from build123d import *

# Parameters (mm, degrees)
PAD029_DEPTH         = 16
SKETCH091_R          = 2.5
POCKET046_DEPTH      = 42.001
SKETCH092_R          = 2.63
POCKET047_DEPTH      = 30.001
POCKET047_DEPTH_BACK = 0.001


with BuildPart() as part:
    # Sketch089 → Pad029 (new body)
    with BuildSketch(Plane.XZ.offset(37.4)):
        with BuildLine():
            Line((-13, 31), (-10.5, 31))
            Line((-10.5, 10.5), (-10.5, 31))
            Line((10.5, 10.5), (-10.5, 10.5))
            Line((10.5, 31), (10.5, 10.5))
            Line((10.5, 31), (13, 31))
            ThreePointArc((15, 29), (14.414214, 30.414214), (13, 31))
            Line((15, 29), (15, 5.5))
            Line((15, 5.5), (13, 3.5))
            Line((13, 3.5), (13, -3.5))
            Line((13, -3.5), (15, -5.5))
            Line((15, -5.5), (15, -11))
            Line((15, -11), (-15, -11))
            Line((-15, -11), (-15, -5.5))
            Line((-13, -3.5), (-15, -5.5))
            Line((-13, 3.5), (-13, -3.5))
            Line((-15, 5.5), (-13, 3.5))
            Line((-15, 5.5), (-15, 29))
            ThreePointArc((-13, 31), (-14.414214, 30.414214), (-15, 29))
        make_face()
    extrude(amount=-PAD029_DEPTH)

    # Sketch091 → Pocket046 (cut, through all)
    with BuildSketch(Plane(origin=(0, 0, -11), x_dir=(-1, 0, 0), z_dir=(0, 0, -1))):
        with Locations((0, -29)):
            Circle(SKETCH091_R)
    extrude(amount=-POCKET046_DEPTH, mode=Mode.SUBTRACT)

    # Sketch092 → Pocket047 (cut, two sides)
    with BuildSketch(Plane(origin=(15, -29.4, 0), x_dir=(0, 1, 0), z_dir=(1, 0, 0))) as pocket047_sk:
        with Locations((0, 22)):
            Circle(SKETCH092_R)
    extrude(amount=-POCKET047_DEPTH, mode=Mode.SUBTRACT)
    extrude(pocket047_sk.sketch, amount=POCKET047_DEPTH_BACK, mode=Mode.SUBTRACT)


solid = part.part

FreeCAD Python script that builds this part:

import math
import FreeCAD as App
import Part
import Sketcher
Q = App.Units.Quantity

doc = App.newDocument("Part")
body = doc.addObject("PartDesign::Body", "Body")

# Sketch on XZ plane
sketch1 = doc.addObject("Sketcher::SketchObject", "Sketch")
body.addObject(sketch1)
sketch1.AttachmentSupport = (doc.XZ_Plane, [""])
sketch1.MapMode = "FlatFace"
sketch1.AttachmentOffset = App.Placement(App.Vector(0, 0, 37.4), App.Rotation())
sketch1.addGeometry(Part.LineSegment(App.Vector(-10.5, 31, 0), App.Vector(-13, 31, 0)), False)
sketch1.addGeometry(Part.ArcOfCircle(Part.Circle(App.Vector(-13.000001, 29.000001, 0), App.Vector(0, 0, 1), 1.999999), math.radians(89.999957), math.radians(180.000043)), False)
sketch1.addGeometry(Part.LineSegment(App.Vector(-15, 29, 0), App.Vector(-15, 5.5, 0)), False)
sketch1.addGeometry(Part.LineSegment(App.Vector(-15, 5.5, 0), App.Vector(-13, 3.5, 0)), False)
sketch1.addGeometry(Part.LineSegment(App.Vector(-13, 3.5, 0), App.Vector(-13, -3.5, 0)), False)
sketch1.addGeometry(Part.LineSegment(App.Vector(-13, -3.5, 0), App.Vector(-15, -5.5, 0)), False)
sketch1.addGeometry(Part.LineSegment(App.Vector(-15, -5.5, 0), App.Vector(-15, -11, 0)), False)
sketch1.addGeometry(Part.LineSegment(App.Vector(-15, -11, 0), App.Vector(15, -11, 0)), False)
sketch1.addGeometry(Part.LineSegment(App.Vector(15, -11, 0), App.Vector(15, -5.5, 0)), False)
sketch1.addGeometry(Part.LineSegment(App.Vector(15, -5.5, 0), App.Vector(13, -3.5, 0)), False)
sketch1.addGeometry(Part.LineSegment(App.Vector(13, -3.5, 0), App.Vector(13, 3.5, 0)), False)
sketch1.addGeometry(Part.LineSegment(App.Vector(13, 3.5, 0), App.Vector(15, 5.5, 0)), False)
sketch1.addGeometry(Part.LineSegment(App.Vector(15, 5.5, 0), App.Vector(15, 29, 0)), False)
sketch1.addGeometry(Part.ArcOfCircle(Part.Circle(App.Vector(13.000001, 29.000001, 0), App.Vector(0, 0, 1), 1.999999), math.radians(-0.000043), math.radians(90.000043)), False)
sketch1.addGeometry(Part.LineSegment(App.Vector(13, 31, 0), App.Vector(10.5, 31, 0)), False)
sketch1.addGeometry(Part.LineSegment(App.Vector(10.5, 31, 0), App.Vector(10.5, 10.5, 0)), False)
sketch1.addGeometry(Part.LineSegment(App.Vector(10.5, 10.5, 0), App.Vector(-10.5, 10.5, 0)), False)
sketch1.addGeometry(Part.LineSegment(App.Vector(-10.5, 10.5, 0), App.Vector(-10.5, 31, 0)), False)
sketch1.addConstraint(Sketcher.Constraint("Tangent", 0, 2, 1, 1))
sketch1.addConstraint(Sketcher.Constraint("Tangent", 1, 2, 2, 1))
sketch1.addConstraint(Sketcher.Constraint("Coincident", 2, 2, 3, 1))
sketch1.addConstraint(Sketcher.Constraint("Coincident", 3, 2, 4, 1))
sketch1.addConstraint(Sketcher.Constraint("Coincident", 4, 2, 5, 1))
sketch1.addConstraint(Sketcher.Constraint("Coincident", 5, 2, 6, 1))
sketch1.addConstraint(Sketcher.Constraint("Coincident", 6, 2, 7, 1))
sketch1.addConstraint(Sketcher.Constraint("Coincident", 7, 2, 8, 1))
sketch1.addConstraint(Sketcher.Constraint("Coincident", 8, 2, 9, 1))
sketch1.addConstraint(Sketcher.Constraint("Coincident", 9, 2, 10, 1))
sketch1.addConstraint(Sketcher.Constraint("Coincident", 10, 2, 11, 1))
sketch1.addConstraint(Sketcher.Constraint("Coincident", 11, 2, 12, 1))
sketch1.addConstraint(Sketcher.Constraint("Tangent", 12, 2, 13, 1))
sketch1.addConstraint(Sketcher.Constraint("Tangent", 13, 2, 14, 1))
sketch1.addConstraint(Sketcher.Constraint("Coincident", 14, 2, 15, 1))
sketch1.addConstraint(Sketcher.Constraint("Coincident", 15, 2, 16, 1))
sketch1.addConstraint(Sketcher.Constraint("Coincident", 16, 2, 17, 1))
sketch1.addConstraint(Sketcher.Constraint("Coincident", 17, 2, 0, 1))
sketch1.addConstraint(Sketcher.Constraint("Horizontal", 0))
sketch1.addConstraint(Sketcher.Constraint("Vertical", 2))
sketch1.addConstraint(Sketcher.Constraint("Vertical", 4))
sketch1.addConstraint(Sketcher.Constraint("Vertical", 6))
sketch1.addConstraint(Sketcher.Constraint("Horizontal", 7))
sketch1.addConstraint(Sketcher.Constraint("Vertical", 8))
sketch1.addConstraint(Sketcher.Constraint("Vertical", 10))
sketch1.addConstraint(Sketcher.Constraint("Vertical", 12))
sketch1.addConstraint(Sketcher.Constraint("Horizontal", 14))
sketch1.addConstraint(Sketcher.Constraint("Vertical", 15))
sketch1.addConstraint(Sketcher.Constraint("Horizontal", 16))
sketch1.addConstraint(Sketcher.Constraint("Vertical", 17))
sketch1.addConstraint(Sketcher.Constraint("Equal", 1, 13))
sketch1.addConstraint(Sketcher.Constraint("Symmetric", 2, 2, 8, 2, -1, 1))
sketch1.addConstraint(Sketcher.Constraint("Symmetric", 3, 2, 9, 2, -1, 1))
sketch1.addConstraint(Sketcher.Constraint("Symmetric", 5, 2, 11, 2, -1, 1))
sketch1.addConstraint(Sketcher.Constraint("Symmetric", 1, 3, 13, 3, -2))
sketch1.addConstraint(Sketcher.Constraint("Perpendicular", 3, 5))
sketch1.addConstraint(Sketcher.Constraint("Perpendicular", 9, 11))
sketch1.addConstraint(Sketcher.Constraint("Horizontal", 5, 2, 8, 2))
sketch1.addConstraint(Sketcher.Constraint("Horizontal", 4, 2, 9, 2))
sketch1.addConstraint(Sketcher.Constraint("Vertical", 0, 2, 3, 2))
sketch1.addConstraint(Sketcher.Constraint("Equal", 0, 14))
sketch1.addConstraint(Sketcher.Constraint("Radius", 1, Q("1.999999 mm")))
sketch1.addConstraint(Sketcher.Constraint("DistanceX", 7, 1, 7, 2, Q("30 mm")))
sketch1.addConstraint(Sketcher.Constraint("DistanceX", 16, 2, 16, 1, Q("21 mm")))
sketch1.addConstraint(Sketcher.Constraint("DistanceY", 4, 2, 4, 1, Q("7 mm")))
sketch1.addConstraint(Sketcher.Constraint("DistanceY", 2, 2, 2, 1, Q("23.5 mm")))
sketch1.addConstraint(Sketcher.Constraint("DistanceY", 6, 2, 6, 1, Q("5.5 mm")))
sketch1.addConstraint(Sketcher.Constraint("DistanceY", 15, 2, 15, 1, Q("20.5 mm")))
pad1 = doc.addObject("PartDesign::Pad", "Pad")
body.addObject(pad1)
pad1.Profile = sketch1
pad1.Length = 16
pad1.Reversed = True

# Sketch on XY plane
sketch2 = doc.addObject("Sketcher::SketchObject", "Sketch001")
body.addObject(sketch2)
sketch2.AttachmentSupport = (doc.XY_Plane, [""])
sketch2.MapMode = "FlatFace"
sketch2.AttachmentOffset = App.Placement(App.Vector(0, 0, -11), App.Rotation())
sketch2.addGeometry(Part.Circle(App.Vector(0, -29, 0), App.Vector(0, 0, 1), 2.5), False)
sketch2.addConstraint(Sketcher.Constraint("PointOnObject", 0, 3, -2))
sketch2.addConstraint(Sketcher.Constraint("Diameter", 0, Q("5 mm")))
sketch2.addConstraint(Sketcher.Constraint("DistanceY", 0, 3, -1, 1, Q("29 mm")))
pocket1 = doc.addObject("PartDesign::Pocket", "Pocket")
body.addObject(pocket1)
pocket1.Profile = sketch2
pocket1.Type = "ThroughAll"
pocket1.Reversed = True

# Sketch on YZ plane
sketch3 = doc.addObject("Sketcher::SketchObject", "Sketch002")
body.addObject(sketch3)
sketch3.AttachmentSupport = (doc.YZ_Plane, [""])
sketch3.MapMode = "FlatFace"
sketch3.AttachmentOffset = App.Placement(App.Vector(0, 0, 15), App.Rotation())
sketch3.addGeometry(Part.Circle(App.Vector(-29.4, 22, 0), App.Vector(0, 0, 1), 2.63), False)
sketch3.addConstraint(Sketcher.Constraint("Diameter", 0, Q("5.26 mm")))
sketch3.addConstraint(Sketcher.Constraint("DistanceY", -1, 1, 0, 3, Q("22 mm")))
sketch3.addConstraint(Sketcher.Constraint("DistanceX", 0, 3, -1, 1, Q("29.4 mm")))
pocket2 = doc.addObject("PartDesign::Pocket", "Pocket001")
body.addObject(pocket2)
pocket2.Profile = sketch3
pocket2.Type = "ThroughAll"
pocket2.Midplane = True

doc.recompute()
